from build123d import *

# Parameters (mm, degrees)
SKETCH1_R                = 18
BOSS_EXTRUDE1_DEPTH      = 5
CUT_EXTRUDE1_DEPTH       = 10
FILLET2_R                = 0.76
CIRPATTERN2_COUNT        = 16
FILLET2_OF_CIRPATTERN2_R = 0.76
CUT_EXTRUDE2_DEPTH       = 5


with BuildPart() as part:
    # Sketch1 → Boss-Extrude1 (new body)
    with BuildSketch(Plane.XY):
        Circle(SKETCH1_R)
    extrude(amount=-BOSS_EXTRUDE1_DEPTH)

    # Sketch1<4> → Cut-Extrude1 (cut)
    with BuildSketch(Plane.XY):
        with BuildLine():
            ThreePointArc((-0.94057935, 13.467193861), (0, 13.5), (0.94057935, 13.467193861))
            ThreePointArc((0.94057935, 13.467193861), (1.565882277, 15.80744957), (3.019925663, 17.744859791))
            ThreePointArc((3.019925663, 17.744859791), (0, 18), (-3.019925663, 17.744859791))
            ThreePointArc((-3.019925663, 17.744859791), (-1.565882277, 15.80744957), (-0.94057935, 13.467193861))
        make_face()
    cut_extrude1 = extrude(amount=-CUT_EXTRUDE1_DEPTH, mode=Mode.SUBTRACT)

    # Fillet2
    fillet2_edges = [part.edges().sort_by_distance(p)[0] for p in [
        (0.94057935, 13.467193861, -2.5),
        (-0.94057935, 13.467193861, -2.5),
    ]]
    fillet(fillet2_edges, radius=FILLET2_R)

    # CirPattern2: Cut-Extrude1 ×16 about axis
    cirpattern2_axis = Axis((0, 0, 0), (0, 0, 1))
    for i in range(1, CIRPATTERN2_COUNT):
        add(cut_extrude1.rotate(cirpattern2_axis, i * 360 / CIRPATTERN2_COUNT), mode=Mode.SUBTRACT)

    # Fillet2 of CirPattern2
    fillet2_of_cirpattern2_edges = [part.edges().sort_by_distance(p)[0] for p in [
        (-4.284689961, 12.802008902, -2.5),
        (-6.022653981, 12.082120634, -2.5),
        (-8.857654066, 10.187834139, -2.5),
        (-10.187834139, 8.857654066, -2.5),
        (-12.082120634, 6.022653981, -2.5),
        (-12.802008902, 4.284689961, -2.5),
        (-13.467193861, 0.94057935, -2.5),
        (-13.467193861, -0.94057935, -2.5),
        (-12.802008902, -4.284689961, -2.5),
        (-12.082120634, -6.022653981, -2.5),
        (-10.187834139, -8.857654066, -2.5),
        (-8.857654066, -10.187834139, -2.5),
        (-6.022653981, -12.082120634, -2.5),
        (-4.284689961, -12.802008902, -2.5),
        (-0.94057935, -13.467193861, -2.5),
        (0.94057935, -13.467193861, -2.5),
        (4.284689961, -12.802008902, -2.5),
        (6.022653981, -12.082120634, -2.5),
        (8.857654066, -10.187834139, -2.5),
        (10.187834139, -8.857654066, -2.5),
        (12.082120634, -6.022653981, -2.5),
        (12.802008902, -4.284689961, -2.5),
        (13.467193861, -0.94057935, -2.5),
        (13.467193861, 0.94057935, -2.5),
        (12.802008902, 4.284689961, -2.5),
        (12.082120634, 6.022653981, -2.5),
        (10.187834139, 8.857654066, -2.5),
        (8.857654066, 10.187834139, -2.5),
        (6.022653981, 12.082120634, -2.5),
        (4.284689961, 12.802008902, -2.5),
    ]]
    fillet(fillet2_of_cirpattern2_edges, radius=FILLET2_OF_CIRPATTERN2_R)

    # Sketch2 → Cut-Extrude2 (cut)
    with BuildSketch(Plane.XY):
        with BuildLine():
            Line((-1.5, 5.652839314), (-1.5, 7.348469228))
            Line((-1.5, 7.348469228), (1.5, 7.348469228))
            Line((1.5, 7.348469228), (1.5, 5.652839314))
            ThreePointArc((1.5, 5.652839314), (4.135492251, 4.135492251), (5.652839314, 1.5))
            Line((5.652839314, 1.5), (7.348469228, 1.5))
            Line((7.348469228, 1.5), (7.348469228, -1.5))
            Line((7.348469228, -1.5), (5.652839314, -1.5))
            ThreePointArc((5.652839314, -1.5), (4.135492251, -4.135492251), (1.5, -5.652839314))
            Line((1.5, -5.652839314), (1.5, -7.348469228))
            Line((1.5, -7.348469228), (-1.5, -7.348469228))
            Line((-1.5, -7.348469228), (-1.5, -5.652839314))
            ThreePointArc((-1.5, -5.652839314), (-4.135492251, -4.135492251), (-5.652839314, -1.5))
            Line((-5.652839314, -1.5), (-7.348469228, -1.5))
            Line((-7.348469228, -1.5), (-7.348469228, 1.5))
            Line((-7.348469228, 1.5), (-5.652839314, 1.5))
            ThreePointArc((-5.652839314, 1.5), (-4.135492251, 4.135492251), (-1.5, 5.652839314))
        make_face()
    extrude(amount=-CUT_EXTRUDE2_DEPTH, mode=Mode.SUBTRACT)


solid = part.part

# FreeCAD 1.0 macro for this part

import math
import FreeCAD as App
import Part
import Sketcher

V = App.Vector
Q = App.Units.Quantity


def edges_at(feature, points):
    """Names of the edges that pass closest to the given points."""
    edges = feature.Shape.Edges
    near = lambda p: min(range(len(edges)), key=lambda i: edges[i].distToShape(Part.Vertex(*p))[0])
    return sorted({f"Edge{near(p) + 1}" for p in points})

doc = App.newDocument("Part")
body = doc.addObject("PartDesign::Body", "Body")

# Sketch on XY plane
sketch1 = doc.addObject("Sketcher::SketchObject", "Sketch")
body.addObject(sketch1)
sketch1.AttachmentSupport = (doc.XY_Plane, [""])
sketch1.MapMode = "FlatFace"
sketch1.addGeometry(Part.Circle(V(0, 0, 0), V(0, 0, 1), 18), False)
sketch1.addConstraint(Sketcher.Constraint("Coincident", 0, 3, -1, 1))
sketch1.addConstraint(Sketcher.Constraint("Diameter", 0, Q("36 mm")))
pad1 = doc.addObject("PartDesign::Pad", "Pad")
body.addObject(pad1)
pad1.Profile = sketch1
pad1.Length = 5
pad1.Reversed = True

# Sketch on XY plane
sketch2 = doc.addObject("Sketcher::SketchObject", "Sketch001")
body.addObject(sketch2)
sketch2.AttachmentSupport = (doc.XY_Plane, [""])
sketch2.MapMode = "FlatFace"
sketch2.addGeometry(Part.ArcOfCircle(Part.Circle(V(0, 0, 0), V(0, 0, 1), 13.5), math.radians(86.004821), math.radians(93.995179)), False)
sketch2.addGeometry(Part.ArcOfCircle(Part.Circle(V(7.293018, 13.023525, 0), V(0, 0, 1), 6.367913), math.radians(132.146993), math.radians(176.004821)), False)
sketch2.addGeometry(Part.ArcOfCircle(Part.Circle(V(0, 0, 0), V(0, 0, 1), 18), math.radians(80.341601), math.radians(99.658399)), False)
sketch2.addGeometry(Part.ArcOfCircle(Part.Circle(V(-7.293018, 13.023525, 0), V(0, 0, 1), 6.367913), math.radians(3.995179), math.radians(47.853007)), False)
sketch2.addConstraint(Sketcher.Constraint("Coincident", 0, 1, 1, 2))
sketch2.addConstraint(Sketcher.Constraint("Coincident", 1, 1, 2, 1))
sketch2.addConstraint(Sketcher.Constraint("Coincident", 2, 2, 3, 2))
sketch2.addConstraint(Sketcher.Constraint("Coincident", 3, 1, 0, 2))
sketch2.addConstraint(Sketcher.Constraint("Coincident", 0, 3, -1, 1))
sketch2.addConstraint(Sketcher.Constraint("Coincident", 2, 3, -1, 1))
sketch2.addConstraint(Sketcher.Constraint("Equal", 1, 3))
sketch2.addConstraint(Sketcher.Constraint("Symmetric", 1, 3, 3, 3, -2))
sketch2.addConstraint(Sketcher.Constraint("Radius", 2, Q("18 mm")))
sketch2.addConstraint(Sketcher.Constraint("Radius", 0, Q("13.5 mm")))
sketch2.addConstraint(Sketcher.Constraint("Radius", 1, Q("6.367913 mm")))
sketch2.addConstraint(Sketcher.Constraint("DistanceX", -1, 1, 1, 3, Q("7.293018 mm")))
sketch2.addConstraint(Sketcher.Constraint("DistanceX", -1, 1, 0, 1, Q("0.940579 mm")))
pocket1 = doc.addObject("PartDesign::Pocket", "Pocket")
body.addObject(pocket1)
pocket1.Profile = sketch2
pocket1.Length = 10
doc.recompute()

fillet = doc.addObject("PartDesign::Fillet", "Fillet")
body.addObject(fillet)
fillet.Base = (pocket1, edges_at(pocket1, [(0.941, 13.467, -2.5), (-0.941, 13.467, -2.5)]))
fillet.Radius = 0.76
doc.recompute()

polarpattern = doc.addObject("PartDesign::PolarPattern", "PolarPattern")
body.addObject(polarpattern)
polarpattern.Originals = [pocket1]
polarpattern.Axis = (doc.Z_Axis, [""])
polarpattern.Angle = 360
polarpattern.Occurrences = 16
body.Tip = polarpattern
doc.recompute()

fillet2 = doc.addObject("PartDesign::Fillet", "Fillet001")
body.addObject(fillet2)
fillet2.Base = (polarpattern, edges_at(polarpattern, [
    (-4.285, 12.802, -2.5),
    (-6.023, 12.082, -2.5),
    (-8.858, 10.188, -2.5),
    (-10.188, 8.858, -2.5),
    (-12.082, 6.023, -2.5),
    (-12.802, 4.285, -2.5),
    (-13.467, 0.941, -2.5),
    (-13.467, -0.941, -2.5),
    (-12.802, -4.285, -2.5),
    (-12.082, -6.023, -2.5),
    (-10.188, -8.858, -2.5),
    (-8.858, -10.188, -2.5),
    (-6.023, -12.082, -2.5),
    (-4.285, -12.802, -2.5),
    (-0.941, -13.467, -2.5),
    (0.941, -13.467, -2.5),
    (4.285, -12.802, -2.5),
    (6.023, -12.082, -2.5),
    (8.858, -10.188, -2.5),
    (10.188, -8.858, -2.5),
    (12.082, -6.023, -2.5),
    (12.802, -4.285, -2.5),
    (13.467, -0.941, -2.5),
    (13.467, 0.941, -2.5),
    (12.802, 4.285, -2.5),
    (12.082, 6.023, -2.5),
    (10.188, 8.858, -2.5),
    (8.858, 10.188, -2.5),
    (6.023, 12.082, -2.5),
    (4.285, 12.802, -2.5),
]))
fillet2.Radius = 0.76

# Sketch on XY plane
sketch3 = doc.addObject("Sketcher::SketchObject", "Sketch002")
body.addObject(sketch3)
sketch3.AttachmentSupport = (doc.XY_Plane, [""])
sketch3.MapMode = "FlatFace"
sketch3.addGeometry(Part.LineSegment(V(-1.5, 7.348469, 0), V(-1.5, 5.652839, 0)), False)
sketch3.addGeometry(Part.ArcOfCircle(Part.Circle(V(0, 0, 0), V(0, 0, 1), 5.848469), math.radians(104.861144), math.radians(165.138856)), False)
sketch3.addGeometry(Part.LineSegment(V(-5.652839, 1.5, 0), V(-7.348469, 1.5, 0)), False)
sketch3.addGeometry(Part.LineSegment(V(-7.348469, 1.5, 0), V(-7.348469, -1.5, 0)), False)
sketch3.addGeometry(Part.LineSegment(V(-7.348469, -1.5, 0), V(-5.652839, -1.5, 0)), False)
sketch3.addGeometry(Part.ArcOfCircle(Part.Circle(V(0, 0, 0), V(0, 0, 1), 5.848469), math.radians(-165.138856), math.radians(-104.861144)), False)
sketch3.addGeometry(Part.LineSegment(V(-1.5, -5.652839, 0), V(-1.5, -7.348469, 0)), False)
sketch3.addGeometry(Part.LineSegment(V(-1.5, -7.348469, 0), V(1.5, -7.348469, 0)), False)
sketch3.addGeometry(Part.LineSegment(V(1.5, -7.348469, 0), V(1.5, -5.652839, 0)), False)
sketch3.addGeometry(Part.ArcOfCircle(Part.Circle(V(0, 0, 0), V(0, 0, 1), 5.848469), math.radians(-75.138856), math.radians(-14.861144)), False)
sketch3.addGeometry(Part.LineSegment(V(5.652839, -1.5, 0), V(7.348469, -1.5, 0)), False)
sketch3.addGeometry(Part.LineSegment(V(7.348469, -1.5, 0), V(7.348469, 1.5, 0)), False)
sketch3.addGeometry(Part.LineSegment(V(7.348469, 1.5, 0), V(5.652839, 1.5, 0)), False)
sketch3.addGeometry(Part.ArcOfCircle(Part.Circle(V(0, 0, 0), V(0, 0, 1), 5.848469), math.radians(14.861144), math.radians(75.138856)), False)
sketch3.addGeometry(Part.LineSegment(V(1.5, 5.652839, 0), V(1.5, 7.348469, 0)), False)
sketch3.addGeometry(Part.LineSegment(V(1.5, 7.348469, 0), V(-1.5, 7.348469, 0)), False)
sketch3.addConstraint(Sketcher.Constraint("Coincident", 0, 2, 1, 1))
sketch3.addConstraint(Sketcher.Constraint("Coincident", 1, 2, 2, 1))
sketch3.addConstraint(Sketcher.Constraint("Coincident", 2, 2, 3, 1))
sketch3.addConstraint(Sketcher.Constraint("Coincident", 3, 2, 4, 1))
sketch3.addConstraint(Sketcher.Constraint("Coincident", 4, 2, 5, 1))
sketch3.addConstraint(Sketcher.Constraint("Coincident", 5, 2, 6, 1))
sketch3.addConstraint(Sketcher.Constraint("Coincident", 6, 2, 7, 1))
sketch3.addConstraint(Sketcher.Constraint("Coincident", 7, 2, 8, 1))
sketch3.addConstraint(Sketcher.Constraint("Coincident", 8, 2, 9, 1))
sketch3.addConstraint(Sketcher.Constraint("Coincident", 9, 2, 10, 1))
sketch3.addConstraint(Sketcher.Constraint("Coincident", 10, 2, 11, 1))
sketch3.addConstraint(Sketcher.Constraint("Coincident", 11, 2, 12, 1))
sketch3.addConstraint(Sketcher.Constraint("Coincident", 12, 2, 13, 1))
sketch3.addConstraint(Sketcher.Constraint("Coincident", 13, 2, 14, 1))
sketch3.addConstraint(Sketcher.Constraint("Coincident", 14, 2, 15, 1))
sketch3.addConstraint(Sketcher.Constraint("Coincident", 15, 2, 0, 1))
sketch3.addConstraint(Sketcher.Constraint("Vertical", 0))
sketch3.addConstraint(Sketcher.Constraint("Horizontal", 2))
sketch3.addConstraint(Sketcher.Constraint("Vertical", 3))
sketch3.addConstraint(Sketcher.Constraint("Horizontal", 4))
sketch3.addConstraint(Sketcher.Constraint("Vertical", 6))
sketch3.addConstraint(Sketcher.Constraint("Horizontal", 7))
sketch3.addConstraint(Sketcher.Constraint("Vertical", 8))
sketch3.addConstraint(Sketcher.Constraint("Horizontal", 10))
sketch3.addConstraint(Sketcher.Constraint("Vertical", 11))
sketch3.addConstraint(Sketcher.Constraint("Horizontal", 12))
sketch3.addConstraint(Sketcher.Constraint("Vertical", 14))
sketch3.addConstraint(Sketcher.Constraint("Horizontal", 15))
sketch3.addConstraint(Sketcher.Constraint("Coincident", 1, 3, -1, 1))
sketch3.addConstraint(Sketcher.Constraint("Coincident", 5, 3, -1, 1))
sketch3.addConstraint(Sketcher.Constraint("Coincident", 9, 3, -1, 1))
sketch3.addConstraint(Sketcher.Constraint("Coincident", 13, 3, -1, 1))
sketch3.addConstraint(Sketcher.Constraint("Equal", 1, 5))
sketch3.addConstraint(Sketcher.Constraint("Equal", 5, 9))
sketch3.addConstraint(Sketcher.Constraint("Equal", 9, 13))
sketch3.addConstraint(Sketcher.Constraint("Symmetric", 2, 2, 10, 2, -1, 1))
sketch3.addConstraint(Sketcher.Constraint("Symmetric", 6, 2, 14, 2, -1, 1))
sketch3.addConstraint(Sketcher.Constraint("Horizontal", 5, 2, 8, 2))
sketch3.addConstraint(Sketcher.Constraint("Horizontal", 4, 2, 9, 2))
sketch3.addConstraint(Sketcher.Constraint("Horizontal", 2, 2, 11, 2))
sketch3.addConstraint(Sketcher.Constraint("Horizontal", 0, 2, 13, 2))
sketch3.addConstraint(Sketcher.Constraint("Equal", 12, 0))
sketch3.addConstraint(Sketcher.Constraint("Equal", 15, 3))
sketch3.addConstraint(Sketcher.Constraint("DistanceX", 7, 1, 7, 2, Q("3 mm")))
sketch3.addConstraint(Sketcher.Constraint("Radius", 1, Q("5.848469 mm")))
sketch3.addConstraint(Sketcher.Constraint("DistanceX", 2, 2, 2, 1, Q("1.69563 mm")))
pocket2 = doc.addObject("PartDesign::Pocket", "Pocket001")
body.addObject(pocket2)
pocket2.Profile = sketch3
pocket2.Length = 5

doc.recompute()
